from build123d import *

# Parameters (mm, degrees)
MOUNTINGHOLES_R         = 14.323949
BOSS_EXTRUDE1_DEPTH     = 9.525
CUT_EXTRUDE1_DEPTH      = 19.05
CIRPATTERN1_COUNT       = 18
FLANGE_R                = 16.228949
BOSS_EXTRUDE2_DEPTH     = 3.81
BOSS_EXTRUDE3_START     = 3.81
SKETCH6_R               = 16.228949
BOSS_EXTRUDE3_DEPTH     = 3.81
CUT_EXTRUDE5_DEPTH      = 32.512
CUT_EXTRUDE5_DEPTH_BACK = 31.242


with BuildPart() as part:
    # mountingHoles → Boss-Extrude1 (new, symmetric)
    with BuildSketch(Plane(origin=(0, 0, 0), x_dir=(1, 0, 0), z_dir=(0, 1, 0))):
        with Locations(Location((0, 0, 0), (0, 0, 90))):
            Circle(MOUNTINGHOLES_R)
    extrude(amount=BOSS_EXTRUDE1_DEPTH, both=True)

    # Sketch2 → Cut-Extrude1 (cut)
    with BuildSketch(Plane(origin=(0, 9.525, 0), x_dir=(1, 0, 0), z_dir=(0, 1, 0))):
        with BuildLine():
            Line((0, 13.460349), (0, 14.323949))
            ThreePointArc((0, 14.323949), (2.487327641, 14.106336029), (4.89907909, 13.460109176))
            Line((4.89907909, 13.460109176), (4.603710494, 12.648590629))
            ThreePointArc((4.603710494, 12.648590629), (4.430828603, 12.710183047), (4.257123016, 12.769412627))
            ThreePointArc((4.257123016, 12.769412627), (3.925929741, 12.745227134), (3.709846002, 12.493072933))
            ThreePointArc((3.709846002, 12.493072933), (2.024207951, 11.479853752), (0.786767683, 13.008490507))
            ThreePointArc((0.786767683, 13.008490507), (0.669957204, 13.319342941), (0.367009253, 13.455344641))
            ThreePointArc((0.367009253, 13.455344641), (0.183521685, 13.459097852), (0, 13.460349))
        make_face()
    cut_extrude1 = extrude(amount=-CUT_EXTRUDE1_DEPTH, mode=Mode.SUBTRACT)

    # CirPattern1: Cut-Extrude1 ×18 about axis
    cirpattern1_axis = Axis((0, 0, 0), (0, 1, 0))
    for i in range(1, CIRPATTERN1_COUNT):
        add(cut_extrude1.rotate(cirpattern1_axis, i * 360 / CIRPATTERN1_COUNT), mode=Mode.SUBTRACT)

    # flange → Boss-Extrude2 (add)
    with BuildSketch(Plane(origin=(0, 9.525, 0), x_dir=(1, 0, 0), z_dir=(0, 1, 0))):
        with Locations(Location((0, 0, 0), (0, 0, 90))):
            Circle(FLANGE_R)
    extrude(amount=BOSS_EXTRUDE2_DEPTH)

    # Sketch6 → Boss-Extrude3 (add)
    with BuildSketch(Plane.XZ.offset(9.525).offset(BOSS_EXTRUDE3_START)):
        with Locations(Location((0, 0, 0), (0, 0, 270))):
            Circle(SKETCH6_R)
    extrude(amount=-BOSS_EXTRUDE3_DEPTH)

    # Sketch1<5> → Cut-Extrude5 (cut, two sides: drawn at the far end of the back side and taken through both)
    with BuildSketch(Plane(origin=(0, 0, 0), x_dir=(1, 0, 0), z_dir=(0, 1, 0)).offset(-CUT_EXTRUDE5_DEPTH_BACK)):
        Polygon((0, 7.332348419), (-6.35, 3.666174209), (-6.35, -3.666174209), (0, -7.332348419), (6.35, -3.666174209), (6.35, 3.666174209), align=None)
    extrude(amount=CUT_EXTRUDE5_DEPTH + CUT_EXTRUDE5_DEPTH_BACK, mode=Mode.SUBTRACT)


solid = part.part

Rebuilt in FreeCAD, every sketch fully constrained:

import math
import FreeCAD as App
import Part
import Sketcher
Q = App.Units.Quantity


def add_polygon(sketch, points):
    """Adds a closed chain of lines whose ends are joined by coincident constraints."""
    first, n = sketch.GeometryCount, len(points)
    for a, b in zip(points, points[1:] + points[:1]):
        sketch.addGeometry(Part.LineSegment(App.Vector(*a, 0), App.Vector(*b, 0)), False)
    for i in range(n):
        sketch.addConstraint(Sketcher.Constraint("Coincident", first + i, 2, first + (i + 1) % n, 1))

doc = App.newDocument("Part")
params = doc.addObject("Spreadsheet::Sheet", "Params")
for row, (alias, value) in enumerate([
    ("pad1_length", "0.75 in"),
    ("sketch2_radius", "0.017 in"),
    ("sketch2_radius2", "0.059 in"),
    ("sketch2_height", "0.034 in"),
    ("sketch2_length", "0.034 in"),
    ("pocket1_length", "0.75 in"),
    ("pad2_length", "0.15 in"),
    ("pad3_length", "0.15 in"),
], start=1):
    params.set(f"A{row}", alias)
    params.set(f"B{row}", "=" + value)
    params.setAlias(f"B{row}", alias)

body = doc.addObject("PartDesign::Body", "Body")

# Sketch on XZ plane
sketch1 = body.newObject("Sketcher::SketchObject", "Sketch")
sketch1.AttachmentSupport = (doc.getObject("XZ_Plane"), [""])
sketch1.MapMode = "FlatFace"
sketch1.addGeometry(Part.Circle(App.Vector(0, 0, 0), App.Vector(0, 0, 1), 14.323949), False)
sketch1.addConstraint(Sketcher.Constraint("Coincident", 0, 3, -1, 1))
sketch1.addConstraint(Sketcher.Constraint("Diameter", 0, Q("28.647898 mm")))
pad1 = body.newObject("PartDesign::Pad", "Pad")
pad1.Profile = sketch1
pad1.setExpression("Length", "Params.pad1_length")
pad1.Midplane = True

# Sketch on XZ plane
sketch2 = body.newObject("Sketcher::SketchObject", "Sketch001")
sketch2.AttachmentSupport = (doc.getObject("XZ_Plane"), [""])
sketch2.MapMode = "FlatFace"
sketch2.AttachmentOffset = App.Placement(App.Vector(0, 0, -0.375 * 25.4), App.Rotation())
sketch2.addGeometry(Part.LineSegment(App.Vector(0, -14.323949, 0), App.Vector(0, -13.460349, 0)), False)
sketch2.addGeometry(Part.ArcOfCircle(Part.Circle(App.Vector(0, 0.000001, 0), App.Vector(0, 0, 1), 13.46035), math.radians(-90), math.radians(-88.437582)), False)
sketch2.addGeometry(Part.ArcOfCircle(Part.Circle(App.Vector(0.355236, -13.023705, 0), App.Vector(0, 0, 1), 0.4318), math.radians(-88.437582), math.radians(2.019261)), False)
sketch2.addGeometry(Part.ArcOfCircle(Part.Circle(App.Vector(2.284437, -12.955687, 0), App.Vector(0, 0, 1), 1.4986), math.radians(17.980739), math.radians(182.019261)), False)
sketch2.addGeometry(Part.ArcOfCircle(Part.Circle(App.Vector(4.120557, -12.359777, 0), App.Vector(0, 0, 1), 0.4318), math.radians(-162.019261), math.radians(-71.562418)), False)
sketch2.addGeometry(Part.ArcOfCircle(Part.Circle(App.Vector(-0.000002, 0.000006, 0), App.Vector(0, 0, 1), 13.460355), math.radians(-71.562417), math.radians(-70)), False)
sketch2.addGeometry(Part.LineSegment(App.Vector(4.60371, -12.648591, 0), App.Vector(4.899079, -13.460109, 0)), False)
sketch2.addGeometry(Part.ArcOfCircle(Part.Circle(App.Vector(0, 0, 0), App.Vector(0, 0, 1), 14.323949), math.radians(-90), math.radians(-70)), False)
sketch2.addConstraint(Sketcher.Constraint("Coincident", 0, 2, 1, 1))
sketch2.addConstraint(Sketcher.Constraint("Tangent", 1, 2, 2, 1))
sketch2.addConstraint(Sketcher.Constraint("Tangent", 2, 2, 3, 2))
sketch2.addConstraint(Sketcher.Constraint("Tangent", 3, 1, 4, 1))
sketch2.addConstraint(Sketcher.Constraint("Tangent", 4, 2, 5, 1))
sketch2.addConstraint(Sketcher.Constraint("Coincident", 5, 2, 6, 1))
sketch2.addConstraint(Sketcher.Constraint("Coincident", 6, 2, 7, 2))
sketch2.addConstraint(Sketcher.Constraint("Coincident", 7, 1, 0, 1))
sketch2.addConstraint(Sketcher.Constraint("Vertical", 0))
sketch2.addConstraint(Sketcher.Constraint("Coincident", 1, 3, -1, 1))
sketch2.addConstraint(Sketcher.Constraint("Coincident", 5, 3, -1, 1))
sketch2.addConstraint(Sketcher.Constraint("Coincident", 7, 3, -1, 1))
sketch2.addConstraint(Sketcher.Constraint("Equal", 2, 4))
sketch2.addConstraint(Sketcher.Constraint("PointOnObject", 0, 2, -2))
sketch2.addConstraint(Sketcher.Constraint("Angle", 6, Q("-70 deg")))
sketch2.addConstraint(Sketcher.Constraint("Radius", 2, Q("0.017 in")))
sketch2.addConstraint(Sketcher.Constraint("Radius", 3, Q("0.059 in")))
sketch2.addConstraint(Sketcher.Constraint("DistanceY", 0, 1, 0, 2, Q("0.034 in")))
sketch2.addConstraint(Sketcher.Constraint("Distance", 6, Q("0.034 in")))
sketch2.addConstraint(Sketcher.Constraint("Radius", 1, Q("13.46035 mm")))
sketch2.addConstraint(Sketcher.Constraint("DistanceX", 2, 3, 3, 3, Q("1.929201 mm")))
sketch2.addConstraint(Sketcher.Constraint("DistanceY", 2, 2, 5, 2, Q("0.3599 mm")))
sketch2.addConstraint(Sketcher.Constraint("DistanceX", -1, 1, 1, 2, Q("0.367009 mm")))
sketch2.setExpression("Constraints[15]", "Params.sketch2_radius")
sketch2.setExpression("Constraints[16]", "Params.sketch2_radius2")
sketch2.setExpression("Constraints[17]", "Params.sketch2_height")
sketch2.setExpression("Constraints[18]", "Params.sketch2_length")
pocket1 = body.newObject("PartDesign::Pocket", "Pocket")
pocket1.Profile = sketch2
pocket1.setExpression("Length", "Params.pocket1_length")
pocket1.Reversed = True
doc.recompute()

polarpattern = body.newObject("PartDesign::PolarPattern", "PolarPattern")
polarpattern.Originals = [pocket1]
polarpattern.Axis = (doc.getObject("Y_Axis"), [""])
polarpattern.Angle = 360
polarpattern.Occurrences = 18
body.Tip = polarpattern

# Sketch on XZ plane
sketch3 = body.newObject("Sketcher::SketchObject", "Sketch002")
sketch3.AttachmentSupport = (doc.getObject("XZ_Plane"), [""])
sketch3.MapMode = "FlatFace"
sketch3.AttachmentOffset = App.Placement(App.Vector(0, 0, -0.375 * 25.4), App.Rotation())
sketch3.addGeometry(Part.Circle(App.Vector(0, 0, 0), App.Vector(0, 0, 1), 16.228949), False)
sketch3.addConstraint(Sketcher.Constraint("Coincident", 0, 3, -1, 1))
sketch3.addConstraint(Sketcher.Constraint("Diameter", 0, Q("32.457898 mm")))
pad2 = body.newObject("PartDesign::Pad", "Pad001")
pad2.Profile = sketch3
pad2.setExpression("Length", "Params.pad2_length")
pad2.Reversed = True

# Sketch on XZ plane
sketch4 = body.newObject("Sketcher::SketchObject", "Sketch003")
sketch4.AttachmentSupport = (doc.getObject("XZ_Plane"), [""])
sketch4.MapMode = "FlatFace"
sketch4.AttachmentOffset = App.Placement(App.Vector(0, 0, 0.525 * 25.4), App.Rotation())
sketch4.addGeometry(Part.Circle(App.Vector(0, 0, 0), App.Vector(0, 0, 1), 16.228949), False)
sketch4.addConstraint(Sketcher.Constraint("Coincident", 0, 3, -1, 1))
sketch4.addConstraint(Sketcher.Constraint("Diameter", 0, Q("32.457898 mm")))
pad3 = body.newObject("PartDesign::Pad", "Pad002")
pad3.Profile = sketch4
pad3.setExpression("Length", "Params.pad3_length")
pad3.Reversed = True

# Sketch on XZ plane
sketch5 = body.newObject("Sketcher::SketchObject", "Sketch004")
sketch5.AttachmentSupport = (doc.getObject("XZ_Plane"), [""])
sketch5.MapMode = "FlatFace"
add_polygon(sketch5, [(0, -7.332348), (-6.35, -3.666174), (-6.35, 3.666174), (0, 7.332348), (6.35, 3.666174), (6.35, -3.666174)])  # lines 0-5
sketch5.addConstraint(Sketcher.Constraint("Vertical", 1))
sketch5.addConstraint(Sketcher.Constraint("Vertical", 4))
sketch5.addConstraint(Sketcher.Constraint("Symmetric", 0, 2, 3, 2, -1, 1))
sketch5.addConstraint(Sketcher.Constraint("Symmetric", 2, 2, 5, 2, -1, 1))
sketch5.addConstraint(Sketcher.Constraint("PointOnObject", 2, 2, -2))
sketch5.addConstraint(Sketcher.Constraint("Parallel", 2, 5))
sketch5.addConstraint(Sketcher.Constraint("Horizontal", 1, 2, 3, 2))
sketch5.addConstraint(Sketcher.Constraint("Angle", 0, Q("150 deg")))
sketch5.addConstraint(Sketcher.Constraint("DistanceX", 1, 2, 3, 2, Q("0.5 in")))
sketch5.addConstraint(Sketcher.Constraint("DistanceY", 1, 1, 1, 2, Q("7.332348 mm")))
pocket2 = body.newObject("PartDesign::Pocket", "Pocket001")
pocket2.Profile = sketch5
pocket2.Type = "ThroughAll"
pocket2.Midplane = True

doc.recompute()
